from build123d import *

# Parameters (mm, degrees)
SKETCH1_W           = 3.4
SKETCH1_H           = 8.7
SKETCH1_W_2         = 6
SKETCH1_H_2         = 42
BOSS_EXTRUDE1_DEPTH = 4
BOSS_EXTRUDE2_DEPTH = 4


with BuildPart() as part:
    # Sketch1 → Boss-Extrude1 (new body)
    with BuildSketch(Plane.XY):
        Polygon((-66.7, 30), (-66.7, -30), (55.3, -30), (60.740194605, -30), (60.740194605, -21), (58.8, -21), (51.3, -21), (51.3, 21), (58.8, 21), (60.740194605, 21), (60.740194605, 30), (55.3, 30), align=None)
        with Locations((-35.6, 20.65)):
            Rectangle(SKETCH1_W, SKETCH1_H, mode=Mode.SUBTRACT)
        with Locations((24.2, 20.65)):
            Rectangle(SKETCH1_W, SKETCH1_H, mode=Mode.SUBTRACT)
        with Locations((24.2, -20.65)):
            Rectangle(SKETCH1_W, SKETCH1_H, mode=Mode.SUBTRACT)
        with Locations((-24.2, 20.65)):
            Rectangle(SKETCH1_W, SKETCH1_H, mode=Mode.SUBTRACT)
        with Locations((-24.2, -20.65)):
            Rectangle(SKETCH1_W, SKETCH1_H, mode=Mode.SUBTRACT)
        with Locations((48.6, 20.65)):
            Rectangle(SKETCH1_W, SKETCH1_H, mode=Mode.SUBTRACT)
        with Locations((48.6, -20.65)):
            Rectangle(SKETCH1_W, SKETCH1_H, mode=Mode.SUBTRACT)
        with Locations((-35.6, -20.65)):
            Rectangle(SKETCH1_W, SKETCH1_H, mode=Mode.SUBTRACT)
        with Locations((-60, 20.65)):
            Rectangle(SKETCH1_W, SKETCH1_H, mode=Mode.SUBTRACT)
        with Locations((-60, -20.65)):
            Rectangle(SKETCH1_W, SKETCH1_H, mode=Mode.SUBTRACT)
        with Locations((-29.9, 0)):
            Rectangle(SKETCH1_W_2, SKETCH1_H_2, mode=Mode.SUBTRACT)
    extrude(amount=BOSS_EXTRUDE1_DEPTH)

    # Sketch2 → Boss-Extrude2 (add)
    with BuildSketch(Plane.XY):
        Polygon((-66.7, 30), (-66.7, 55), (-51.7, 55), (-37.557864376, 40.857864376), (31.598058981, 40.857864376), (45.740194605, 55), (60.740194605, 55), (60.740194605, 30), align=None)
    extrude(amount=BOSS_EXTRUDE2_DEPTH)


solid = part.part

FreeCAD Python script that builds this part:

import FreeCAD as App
import Part
import Sketcher

V = App.Vector
Q = App.Units.Quantity

doc = App.newDocument("Part")
body = doc.addObject("PartDesign::Body", "Body")

sketch1 = doc.addObject("Sketcher::SketchObject", "Sketch")
body.addObject(sketch1)
sketch1.AttachmentSupport = (doc.XY_Plane, [""])
sketch1.MapMode = "FlatFace"
sketch1.addGeometry(Part.LineSegment(V(-66.7, 30, 0), V(-66.7, -30, 0)), False)
sketch1.addGeometry(Part.LineSegment(V(-66.7, -30, 0), V(60.7, -30, 0)), False)
sketch1.addGeometry(Part.LineSegment(V(60.7, -30, 0), V(60.7, -21, 0)), False)
sketch1.addGeometry(Part.LineSegment(V(60.7, -21, 0), V(51.3, -21, 0)), False)
sketch1.addGeometry(Part.LineSegment(V(51.3, -21, 0), V(51.3, 21, 0)), False)
sketch1.addGeometry(Part.LineSegment(V(51.3, 21, 0), V(60.7, 21, 0)), False)
sketch1.addGeometry(Part.LineSegment(V(60.7, 21, 0), V(60.7, 30, 0)), False)
sketch1.addGeometry(Part.LineSegment(V(60.7, 30, 0), V(-66.7, 30, 0)), False)
sketch1.addGeometry(Part.LineSegment(V(-58.3, -25, 0), V(-61.7, -25, 0)), False)
sketch1.addGeometry(Part.LineSegment(V(-61.7, -25, 0), V(-61.7, -16.3, 0)), False)
sketch1.addGeometry(Part.LineSegment(V(-61.7, -16.3, 0), V(-58.3, -16.3, 0)), False)
sketch1.addGeometry(Part.LineSegment(V(-58.3, -16.3, 0), V(-58.3, -25, 0)), False)
sketch1.addGeometry(Part.LineSegment(V(-33.9, -25, 0), V(-37.3, -25, 0)), False)
sketch1.addGeometry(Part.LineSegment(V(-37.3, -25, 0), V(-37.3, -16.3, 0)), False)
sketch1.addGeometry(Part.LineSegment(V(-37.3, -16.3, 0), V(-33.9, -16.3, 0)), False)
sketch1.addGeometry(Part.LineSegment(V(-33.9, -16.3, 0), V(-33.9, -25, 0)), False)
sketch1.addGeometry(Part.LineSegment(V(-22.5, -25, 0), V(-25.9, -25, 0)), False)
sketch1.addGeometry(Part.LineSegment(V(-25.9, -25, 0), V(-25.9, -16.3, 0)), False)
sketch1.addGeometry(Part.LineSegment(V(-25.9, -16.3, 0), V(-22.5, -16.3, 0)), False)
sketch1.addGeometry(Part.LineSegment(V(-22.5, -16.3, 0), V(-22.5, -25, 0)), False)
sketch1.addGeometry(Part.LineSegment(V(25.9, -25, 0), V(22.5, -25, 0)), False)
sketch1.addGeometry(Part.LineSegment(V(22.5, -25, 0), V(22.5, -16.3, 0)), False)
sketch1.addGeometry(Part.LineSegment(V(22.5, -16.3, 0), V(25.9, -16.3, 0)), False)
sketch1.addGeometry(Part.LineSegment(V(25.9, -16.3, 0), V(25.9, -25, 0)), False)
sketch1.addGeometry(Part.LineSegment(V(50.3, -25, 0), V(46.9, -25, 0)), False)
sketch1.addGeometry(Part.LineSegment(V(46.9, -25, 0), V(46.9, -16.3, 0)), False)
sketch1.addGeometry(Part.LineSegment(V(46.9, -16.3, 0), V(50.3, -16.3, 0)), False)
sketch1.addGeometry(Part.LineSegment(V(50.3, -16.3, 0), V(50.3, -25, 0)), False)
sketch1.addGeometry(Part.LineSegment(V(-26.9, -21, 0), V(-32.9, -21, 0)), False)
sketch1.addGeometry(Part.LineSegment(V(-32.9, -21, 0), V(-32.9, 21, 0)), False)
sketch1.addGeometry(Part.LineSegment(V(-32.9, 21, 0), V(-26.9, 21, 0)), False)
sketch1.addGeometry(Part.LineSegment(V(-26.9, 21, 0), V(-26.9, -21, 0)), False)
sketch1.addGeometry(Part.LineSegment(V(-58.3, 16.3, 0), V(-61.7, 16.3, 0)), False)
sketch1.addGeometry(Part.LineSegment(V(-61.7, 16.3, 0), V(-61.7, 25, 0)), False)
sketch1.addGeometry(Part.LineSegment(V(-61.7, 25, 0), V(-58.3, 25, 0)), False)
sketch1.addGeometry(Part.LineSegment(V(-58.3, 25, 0), V(-58.3, 16.3, 0)), False)
sketch1.addGeometry(Part.LineSegment(V(-33.9, 16.3, 0), V(-37.3, 16.3, 0)), False)
sketch1.addGeometry(Part.LineSegment(V(-37.3, 16.3, 0), V(-37.3, 25, 0)), False)
sketch1.addGeometry(Part.LineSegment(V(-37.3, 25, 0), V(-33.9, 25, 0)), False)
sketch1.addGeometry(Part.LineSegment(V(-33.9, 25, 0), V(-33.9, 16.3, 0)), False)
sketch1.addGeometry(Part.LineSegment(V(-22.5, 16.3, 0), V(-25.9, 16.3, 0)), False)
sketch1.addGeometry(Part.LineSegment(V(-25.9, 16.3, 0), V(-25.9, 25, 0)), False)
sketch1.addGeometry(Part.LineSegment(V(-25.9, 25, 0), V(-22.5, 25, 0)), False)
sketch1.addGeometry(Part.LineSegment(V(-22.5, 25, 0), V(-22.5, 16.3, 0)), False)
sketch1.addGeometry(Part.LineSegment(V(25.9, 16.3, 0), V(22.5, 16.3, 0)), False)
sketch1.addGeometry(Part.LineSegment(V(22.5, 16.3, 0), V(22.5, 25, 0)), False)
sketch1.addGeometry(Part.LineSegment(V(22.5, 25, 0), V(25.9, 25, 0)), False)
sketch1.addGeometry(Part.LineSegment(V(25.9, 25, 0), V(25.9, 16.3, 0)), False)
sketch1.addGeometry(Part.LineSegment(V(50.3, 16.3, 0), V(46.9, 16.3, 0)), False)
sketch1.addGeometry(Part.LineSegment(V(46.9, 16.3, 0), V(46.9, 25, 0)), False)
sketch1.addGeometry(Part.LineSegment(V(46.9, 25, 0), V(50.3, 25, 0)), False)
sketch1.addGeometry(Part.LineSegment(V(50.3, 25, 0), V(50.3, 16.3, 0)), False)
sketch1.addConstraint(Sketcher.Constraint("Coincident", 0, 2, 1, 1))
sketch1.addConstraint(Sketcher.Constraint("Coincident", 1, 2, 2, 1))
sketch1.addConstraint(Sketcher.Constraint("Coincident", 2, 2, 3, 1))
sketch1.addConstraint(Sketcher.Constraint("Coincident", 3, 2, 4, 1))
sketch1.addConstraint(Sketcher.Constraint("Coincident", 4, 2, 5, 1))
sketch1.addConstraint(Sketcher.Constraint("Coincident", 5, 2, 6, 1))
sketch1.addConstraint(Sketcher.Constraint("Coincident", 6, 2, 7, 1))
sketch1.addConstraint(Sketcher.Constraint("Coincident", 7, 2, 0, 1))
sketch1.addConstraint(Sketcher.Constraint("Coincident", 8, 2, 9, 1))
sketch1.addConstraint(Sketcher.Constraint("Coincident", 9, 2, 10, 1))
sketch1.addConstraint(Sketcher.Constraint("Coincident", 10, 2, 11, 1))
sketch1.addConstraint(Sketcher.Constraint("Coincident", 11, 2, 8, 1))
sketch1.addConstraint(Sketcher.Constraint("Coincident", 12, 2, 13, 1))
sketch1.addConstraint(Sketcher.Constraint("Coincident", 13, 2, 14, 1))
sketch1.addConstraint(Sketcher.Constraint("Coincident", 14, 2, 15, 1))
sketch1.addConstraint(Sketcher.Constraint("Coincident", 15, 2, 12, 1))
sketch1.addConstraint(Sketcher.Constraint("Coincident", 16, 2, 17, 1))
sketch1.addConstraint(Sketcher.Constraint("Coincident", 17, 2, 18, 1))
sketch1.addConstraint(Sketcher.Constraint("Coincident", 18, 2, 19, 1))
sketch1.addConstraint(Sketcher.Constraint("Coincident", 19, 2, 16, 1))
sketch1.addConstraint(Sketcher.Constraint("Coincident", 20, 2, 21, 1))
sketch1.addConstraint(Sketcher.Constraint("Coincident", 21, 2, 22, 1))
sketch1.addConstraint(Sketcher.Constraint("Coincident", 22, 2, 23, 1))
sketch1.addConstraint(Sketcher.Constraint("Coincident", 23, 2, 20, 1))
sketch1.addConstraint(Sketcher.Constraint("Coincident", 24, 2, 25, 1))
sketch1.addConstraint(Sketcher.Constraint("Coincident", 25, 2, 26, 1))
sketch1.addConstraint(Sketcher.Constraint("Coincident", 26, 2, 27, 1))
sketch1.addConstraint(Sketcher.Constraint("Coincident", 27, 2, 24, 1))
sketch1.addConstraint(Sketcher.Constraint("Coincident", 28, 2, 29, 1))
sketch1.addConstraint(Sketcher.Constraint("Coincident", 29, 2, 30, 1))
sketch1.addConstraint(Sketcher.Constraint("Coincident", 30, 2, 31, 1))
sketch1.addConstraint(Sketcher.Constraint("Coincident", 31, 2, 28, 1))
sketch1.addConstraint(Sketcher.Constraint("Coincident", 32, 2, 33, 1))
sketch1.addConstraint(Sketcher.Constraint("Coincident", 33, 2, 34, 1))
sketch1.addConstraint(Sketcher.Constraint("Coincident", 34, 2, 35, 1))
sketch1.addConstraint(Sketcher.Constraint("Coincident", 35, 2, 32, 1))
sketch1.addConstraint(Sketcher.Constraint("Coincident", 36, 2, 37, 1))
sketch1.addConstraint(Sketcher.Constraint("Coincident", 37, 2, 38, 1))
sketch1.addConstraint(Sketcher.Constraint("Coincident", 38, 2, 39, 1))
sketch1.addConstraint(Sketcher.Constraint("Coincident", 39, 2, 36, 1))
sketch1.addConstraint(Sketcher.Constraint("Coincident", 40, 2, 41, 1))
sketch1.addConstraint(Sketcher.Constraint("Coincident", 41, 2, 42, 1))
sketch1.addConstraint(Sketcher.Constraint("Coincident", 42, 2, 43, 1))
sketch1.addConstraint(Sketcher.Constraint("Coincident", 43, 2, 40, 1))
sketch1.addConstraint(Sketcher.Constraint("Coincident", 44, 2, 45, 1))
sketch1.addConstraint(Sketcher.Constraint("Coincident", 45, 2, 46, 1))
sketch1.addConstraint(Sketcher.Constraint("Coincident", 46, 2, 47, 1))
sketch1.addConstraint(Sketcher.Constraint("Coincident", 47, 2, 44, 1))
sketch1.addConstraint(Sketcher.Constraint("Coincident", 48, 2, 49, 1))
sketch1.addConstraint(Sketcher.Constraint("Coincident", 49, 2, 50, 1))
sketch1.addConstraint(Sketcher.Constraint("Coincident", 50, 2, 51, 1))
sketch1.addConstraint(Sketcher.Constraint("Coincident", 51, 2, 48, 1))
sketch1.addConstraint(Sketcher.Constraint("Vertical", 0))
sketch1.addConstraint(Sketcher.Constraint("Horizontal", 1))
sketch1.addConstraint(Sketcher.Constraint("Vertical", 2))
sketch1.addConstraint(Sketcher.Constraint("Horizontal", 3))
sketch1.addConstraint(Sketcher.Constraint("Vertical", 4))
sketch1.addConstraint(Sketcher.Constraint("Horizontal", 5))
sketch1.addConstraint(Sketcher.Constraint("Vertical", 6))
sketch1.addConstraint(Sketcher.Constraint("Horizontal", 7))
sketch1.addConstraint(Sketcher.Constraint("Horizontal", 8))
sketch1.addConstraint(Sketcher.Constraint("Vertical", 9))
sketch1.addConstraint(Sketcher.Constraint("Horizontal", 10))
sketch1.addConstraint(Sketcher.Constraint("Vertical", 11))
sketch1.addConstraint(Sketcher.Constraint("Horizontal", 12))
sketch1.addConstraint(Sketcher.Constraint("Vertical", 13))
sketch1.addConstraint(Sketcher.Constraint("Horizontal", 14))
sketch1.addConstraint(Sketcher.Constraint("Vertical", 15))
sketch1.addConstraint(Sketcher.Constraint("Horizontal", 16))
sketch1.addConstraint(Sketcher.Constraint("Vertical", 17))
sketch1.addConstraint(Sketcher.Constraint("Horizontal", 18))
sketch1.addConstraint(Sketcher.Constraint("Vertical", 19))
sketch1.addConstraint(Sketcher.Constraint("Horizontal", 20))
sketch1.addConstraint(Sketcher.Constraint("Vertical", 21))
sketch1.addConstraint(Sketcher.Constraint("Horizontal", 22))
sketch1.addConstraint(Sketcher.Constraint("Vertical", 23))
sketch1.addConstraint(Sketcher.Constraint("Horizontal", 24))
sketch1.addConstraint(Sketcher.Constraint("Vertical", 25))
sketch1.addConstraint(Sketcher.Constraint("Horizontal", 26))
sketch1.addConstraint(Sketcher.Constraint("Vertical", 27))
sketch1.addConstraint(Sketcher.Constraint("Horizontal", 28))
sketch1.addConstraint(Sketcher.Constraint("Vertical", 29))
sketch1.addConstraint(Sketcher.Constraint("Horizontal", 30))
sketch1.addConstraint(Sketcher.Constraint("Vertical", 31))
sketch1.addConstraint(Sketcher.Constraint("Horizontal", 32))
sketch1.addConstraint(Sketcher.Constraint("Vertical", 33))
sketch1.addConstraint(Sketcher.Constraint("Horizontal", 34))
sketch1.addConstraint(Sketcher.Constraint("Vertical", 35))
sketch1.addConstraint(Sketcher.Constraint("Horizontal", 36))
sketch1.addConstraint(Sketcher.Constraint("Vertical", 37))
sketch1.addConstraint(Sketcher.Constraint("Horizontal", 38))
sketch1.addConstraint(Sketcher.Constraint("Vertical", 39))
sketch1.addConstraint(Sketcher.Constraint("Horizontal", 40))
sketch1.addConstraint(Sketcher.Constraint("Vertical", 41))
sketch1.addConstraint(Sketcher.Constraint("Horizontal", 42))
sketch1.addConstraint(Sketcher.Constraint("Vertical", 43))
sketch1.addConstraint(Sketcher.Constraint("Horizontal", 44))
sketch1.addConstraint(Sketcher.Constraint("Vertical", 45))
sketch1.addConstraint(Sketcher.Constraint("Horizontal", 46))
sketch1.addConstraint(Sketcher.Constraint("Vertical", 47))
sketch1.addConstraint(Sketcher.Constraint("Horizontal", 48))
sketch1.addConstraint(Sketcher.Constraint("Vertical", 49))
sketch1.addConstraint(Sketcher.Constraint("Horizontal", 50))
sketch1.addConstraint(Sketcher.Constraint("Vertical", 51))
sketch1.addConstraint(Sketcher.Constraint("Symmetric", 22, 2, 40, 2, -1, 1))
sketch1.addConstraint(Sketcher.Constraint("Symmetric", 20, 2, 42, 2, -1, 1))
sketch1.addConstraint(Sketcher.Constraint("Symmetric", 18, 2, 44, 2, -1, 1))
sketch1.addConstraint(Sketcher.Constraint("Symmetric", 16, 2, 46, 2, -1, 1))
sketch1.addConstraint(Sketcher.Constraint("Symmetric", 19, 2, 20, 2, -2))
sketch1.addConstraint(Sketcher.Constraint("Symmetric", 17, 2, 22, 2, -2))
sketch1.addConstraint(Sketcher.Constraint("Symmetric", 2, 2, 5, 2, -1))
sketch1.addConstraint(Sketcher.Constraint("Symmetric", 9, 2, 32, 2, -1))
sketch1.addConstraint(Sketcher.Constraint("Symmetric", 11, 2, 34, 2, -1))
sketch1.addConstraint(Sketcher.Constraint("Symmetric", 13, 2, 36, 2, -1))
sketch1.addConstraint(Sketcher.Constraint("Symmetric", 15, 2, 38, 2, -1))
sketch1.addConstraint(Sketcher.Constraint("Symmetric", 25, 2, 48, 2, -1))
sketch1.addConstraint(Sketcher.Constraint("Symmetric", 27, 2, 50, 2, -1))
sketch1.addConstraint(Sketcher.Constraint("Horizontal", 11, 2, 12, 2))
sketch1.addConstraint(Sketcher.Constraint("Horizontal", 10, 2, 13, 2))
sketch1.addConstraint(Sketcher.Constraint("Horizontal", 15, 2, 16, 2))
sketch1.addConstraint(Sketcher.Constraint("Horizontal", 14, 2, 17, 2))
sketch1.addConstraint(Sketcher.Constraint("Horizontal", 23, 2, 24, 2))
sketch1.addConstraint(Sketcher.Constraint("Horizontal", 22, 2, 25, 2))
sketch1.addConstraint(Sketcher.Constraint("Horizontal", 3, 2, 28, 2))
sketch1.addConstraint(Sketcher.Constraint("Horizontal", 5, 2, 29, 2))
sketch1.addConstraint(Sketcher.Constraint("Equal", 10, 12))
sketch1.addConstraint(Sketcher.Constraint("Equal", 14, 16))
sketch1.addConstraint(Sketcher.Constraint("Equal", 22, 24))
sketch1.addConstraint(Sketcher.Constraint("Equal", 2, 6))
sketch1.addConstraint(Sketcher.Constraint("DistanceX", 28, 2, 28, 1, Q("6 mm")))
sketch1.addConstraint(Sketcher.Constraint("DistanceY", 0, 2, 0, 1, Q("60 mm")))
sketch1.addConstraint(Sketcher.Constraint("DistanceY", 2, 1, 2, 2, Q("9 mm")))
sketch1.addConstraint(Sketcher.Constraint("DistanceX", 8, 2, 8, 1, Q("3.4 mm")))
sketch1.addConstraint(Sketcher.Constraint("DistanceY", 9, 1, 9, 2, Q("8.7 mm")))
sketch1.addConstraint(Sketcher.Constraint("DistanceY", 8, 2, -1, 1, Q("25 mm")))
sketch1.addConstraint(Sketcher.Constraint("DistanceX", 0, 2, 3, 2, Q("118 mm")))
sketch1.addConstraint(Sketcher.Constraint("DistanceX", 0, 2, 8, 2, Q("5 mm")))
sketch1.addConstraint(Sketcher.Constraint("DistanceX", 11, 2, 12, 2, Q("21 mm")))
sketch1.addConstraint(Sketcher.Constraint("DistanceX", 15, 2, 16, 2, Q("8 mm")))
sketch1.addConstraint(Sketcher.Constraint("DistanceX", 19, 2, 20, 2, Q("45 mm")))
sketch1.addConstraint(Sketcher.Constraint("DistanceX", 23, 2, 24, 2, Q("21 mm")))
sketch1.addConstraint(Sketcher.Constraint("DistanceX", 15, 2, 28, 2, Q("1 mm")))
sketch1.addConstraint(Sketcher.Constraint("DistanceX", 1, 1, 1, 2, Q("127.440195 mm")))
pad1 = doc.addObject("PartDesign::Pad", "Pad")
body.addObject(pad1)
pad1.Profile = sketch1
pad1.Length = 4

sketch2 = doc.addObject("Sketcher::SketchObject", "Sketch001")
body.addObject(sketch2)
sketch2.AttachmentSupport = (doc.XY_Plane, [""])
sketch2.MapMode = "FlatFace"
sketch2.addGeometry(Part.LineSegment(V(-67, 55, 0), V(-67, 30, 0)), False)
sketch2.addGeometry(Part.LineSegment(V(-67, 30, 0), V(61, 30, 0)), False)
sketch2.addGeometry(Part.LineSegment(V(61, 30, 0), V(61, 55, 0)), False)
sketch2.addGeometry(Part.LineSegment(V(61, 55, 0), V(46, 55, 0)), False)
sketch2.addGeometry(Part.LineSegment(V(46, 55, 0), V(32, 41, 0)), False)
sketch2.addGeometry(Part.LineSegment(V(32, 41, 0), V(-38, 41, 0)), False)
sketch2.addGeometry(Part.LineSegment(V(-38, 41, 0), V(-52, 55, 0)), False)
sketch2.addGeometry(Part.LineSegment(V(-52, 55, 0), V(-67, 55, 0)), False)
sketch2.addConstraint(Sketcher.Constraint("Coincident", 0, 2, 1, 1))
sketch2.addConstraint(Sketcher.Constraint("Coincident", 1, 2, 2, 1))
sketch2.addConstraint(Sketcher.Constraint("Coincident", 2, 2, 3, 1))
sketch2.addConstraint(Sketcher.Constraint("Coincident", 3, 2, 4, 1))
sketch2.addConstraint(Sketcher.Constraint("Coincident", 4, 2, 5, 1))
sketch2.addConstraint(Sketcher.Constraint("Coincident", 5, 2, 6, 1))
sketch2.addConstraint(Sketcher.Constraint("Coincident", 6, 2, 7, 1))
sketch2.addConstraint(Sketcher.Constraint("Coincident", 7, 2, 0, 1))
sketch2.addConstraint(Sketcher.Constraint("Vertical", 0))
sketch2.addConstraint(Sketcher.Constraint("Horizontal", 1))
sketch2.addConstraint(Sketcher.Constraint("Vertical", 2))
sketch2.addConstraint(Sketcher.Constraint("Horizontal", 3))
sketch2.addConstraint(Sketcher.Constraint("Horizontal", 5))
sketch2.addConstraint(Sketcher.Constraint("Horizontal", 7))
sketch2.addConstraint(Sketcher.Constraint("Perpendicular", 4, 6))
sketch2.addConstraint(Sketcher.Constraint("Horizontal", 3, 2, 6, 2))
sketch2.addConstraint(Sketcher.Constraint("Equal", 3, 7))
sketch2.addConstraint(Sketcher.Constraint("Equal", 4, 6))
sketch2.addConstraint(Sketcher.Constraint("DistanceX", 3, 2, 3, 1, Q("15 mm")))
sketch2.addConstraint(Sketcher.Constraint("DistanceY", 0, 2, 0, 1, Q("25 mm")))
sketch2.addConstraint(Sketcher.Constraint("Distance", 4, Q("20 mm")))
sketch2.addConstraint(Sketcher.Constraint("DistanceY", -1, 1, 0, 2, Q("30 mm")))
sketch2.addConstraint(Sketcher.Constraint("DistanceX", 0, 2, -1, 1, Q("66.7 mm")))
sketch2.addConstraint(Sketcher.Constraint("DistanceX", 1, 1, 1, 2, Q("127.440195 mm")))
pad2 = doc.addObject("PartDesign::Pad", "Pad001")
body.addObject(pad2)
pad2.Profile = sketch2
pad2.Length = 4

doc.recompute()
